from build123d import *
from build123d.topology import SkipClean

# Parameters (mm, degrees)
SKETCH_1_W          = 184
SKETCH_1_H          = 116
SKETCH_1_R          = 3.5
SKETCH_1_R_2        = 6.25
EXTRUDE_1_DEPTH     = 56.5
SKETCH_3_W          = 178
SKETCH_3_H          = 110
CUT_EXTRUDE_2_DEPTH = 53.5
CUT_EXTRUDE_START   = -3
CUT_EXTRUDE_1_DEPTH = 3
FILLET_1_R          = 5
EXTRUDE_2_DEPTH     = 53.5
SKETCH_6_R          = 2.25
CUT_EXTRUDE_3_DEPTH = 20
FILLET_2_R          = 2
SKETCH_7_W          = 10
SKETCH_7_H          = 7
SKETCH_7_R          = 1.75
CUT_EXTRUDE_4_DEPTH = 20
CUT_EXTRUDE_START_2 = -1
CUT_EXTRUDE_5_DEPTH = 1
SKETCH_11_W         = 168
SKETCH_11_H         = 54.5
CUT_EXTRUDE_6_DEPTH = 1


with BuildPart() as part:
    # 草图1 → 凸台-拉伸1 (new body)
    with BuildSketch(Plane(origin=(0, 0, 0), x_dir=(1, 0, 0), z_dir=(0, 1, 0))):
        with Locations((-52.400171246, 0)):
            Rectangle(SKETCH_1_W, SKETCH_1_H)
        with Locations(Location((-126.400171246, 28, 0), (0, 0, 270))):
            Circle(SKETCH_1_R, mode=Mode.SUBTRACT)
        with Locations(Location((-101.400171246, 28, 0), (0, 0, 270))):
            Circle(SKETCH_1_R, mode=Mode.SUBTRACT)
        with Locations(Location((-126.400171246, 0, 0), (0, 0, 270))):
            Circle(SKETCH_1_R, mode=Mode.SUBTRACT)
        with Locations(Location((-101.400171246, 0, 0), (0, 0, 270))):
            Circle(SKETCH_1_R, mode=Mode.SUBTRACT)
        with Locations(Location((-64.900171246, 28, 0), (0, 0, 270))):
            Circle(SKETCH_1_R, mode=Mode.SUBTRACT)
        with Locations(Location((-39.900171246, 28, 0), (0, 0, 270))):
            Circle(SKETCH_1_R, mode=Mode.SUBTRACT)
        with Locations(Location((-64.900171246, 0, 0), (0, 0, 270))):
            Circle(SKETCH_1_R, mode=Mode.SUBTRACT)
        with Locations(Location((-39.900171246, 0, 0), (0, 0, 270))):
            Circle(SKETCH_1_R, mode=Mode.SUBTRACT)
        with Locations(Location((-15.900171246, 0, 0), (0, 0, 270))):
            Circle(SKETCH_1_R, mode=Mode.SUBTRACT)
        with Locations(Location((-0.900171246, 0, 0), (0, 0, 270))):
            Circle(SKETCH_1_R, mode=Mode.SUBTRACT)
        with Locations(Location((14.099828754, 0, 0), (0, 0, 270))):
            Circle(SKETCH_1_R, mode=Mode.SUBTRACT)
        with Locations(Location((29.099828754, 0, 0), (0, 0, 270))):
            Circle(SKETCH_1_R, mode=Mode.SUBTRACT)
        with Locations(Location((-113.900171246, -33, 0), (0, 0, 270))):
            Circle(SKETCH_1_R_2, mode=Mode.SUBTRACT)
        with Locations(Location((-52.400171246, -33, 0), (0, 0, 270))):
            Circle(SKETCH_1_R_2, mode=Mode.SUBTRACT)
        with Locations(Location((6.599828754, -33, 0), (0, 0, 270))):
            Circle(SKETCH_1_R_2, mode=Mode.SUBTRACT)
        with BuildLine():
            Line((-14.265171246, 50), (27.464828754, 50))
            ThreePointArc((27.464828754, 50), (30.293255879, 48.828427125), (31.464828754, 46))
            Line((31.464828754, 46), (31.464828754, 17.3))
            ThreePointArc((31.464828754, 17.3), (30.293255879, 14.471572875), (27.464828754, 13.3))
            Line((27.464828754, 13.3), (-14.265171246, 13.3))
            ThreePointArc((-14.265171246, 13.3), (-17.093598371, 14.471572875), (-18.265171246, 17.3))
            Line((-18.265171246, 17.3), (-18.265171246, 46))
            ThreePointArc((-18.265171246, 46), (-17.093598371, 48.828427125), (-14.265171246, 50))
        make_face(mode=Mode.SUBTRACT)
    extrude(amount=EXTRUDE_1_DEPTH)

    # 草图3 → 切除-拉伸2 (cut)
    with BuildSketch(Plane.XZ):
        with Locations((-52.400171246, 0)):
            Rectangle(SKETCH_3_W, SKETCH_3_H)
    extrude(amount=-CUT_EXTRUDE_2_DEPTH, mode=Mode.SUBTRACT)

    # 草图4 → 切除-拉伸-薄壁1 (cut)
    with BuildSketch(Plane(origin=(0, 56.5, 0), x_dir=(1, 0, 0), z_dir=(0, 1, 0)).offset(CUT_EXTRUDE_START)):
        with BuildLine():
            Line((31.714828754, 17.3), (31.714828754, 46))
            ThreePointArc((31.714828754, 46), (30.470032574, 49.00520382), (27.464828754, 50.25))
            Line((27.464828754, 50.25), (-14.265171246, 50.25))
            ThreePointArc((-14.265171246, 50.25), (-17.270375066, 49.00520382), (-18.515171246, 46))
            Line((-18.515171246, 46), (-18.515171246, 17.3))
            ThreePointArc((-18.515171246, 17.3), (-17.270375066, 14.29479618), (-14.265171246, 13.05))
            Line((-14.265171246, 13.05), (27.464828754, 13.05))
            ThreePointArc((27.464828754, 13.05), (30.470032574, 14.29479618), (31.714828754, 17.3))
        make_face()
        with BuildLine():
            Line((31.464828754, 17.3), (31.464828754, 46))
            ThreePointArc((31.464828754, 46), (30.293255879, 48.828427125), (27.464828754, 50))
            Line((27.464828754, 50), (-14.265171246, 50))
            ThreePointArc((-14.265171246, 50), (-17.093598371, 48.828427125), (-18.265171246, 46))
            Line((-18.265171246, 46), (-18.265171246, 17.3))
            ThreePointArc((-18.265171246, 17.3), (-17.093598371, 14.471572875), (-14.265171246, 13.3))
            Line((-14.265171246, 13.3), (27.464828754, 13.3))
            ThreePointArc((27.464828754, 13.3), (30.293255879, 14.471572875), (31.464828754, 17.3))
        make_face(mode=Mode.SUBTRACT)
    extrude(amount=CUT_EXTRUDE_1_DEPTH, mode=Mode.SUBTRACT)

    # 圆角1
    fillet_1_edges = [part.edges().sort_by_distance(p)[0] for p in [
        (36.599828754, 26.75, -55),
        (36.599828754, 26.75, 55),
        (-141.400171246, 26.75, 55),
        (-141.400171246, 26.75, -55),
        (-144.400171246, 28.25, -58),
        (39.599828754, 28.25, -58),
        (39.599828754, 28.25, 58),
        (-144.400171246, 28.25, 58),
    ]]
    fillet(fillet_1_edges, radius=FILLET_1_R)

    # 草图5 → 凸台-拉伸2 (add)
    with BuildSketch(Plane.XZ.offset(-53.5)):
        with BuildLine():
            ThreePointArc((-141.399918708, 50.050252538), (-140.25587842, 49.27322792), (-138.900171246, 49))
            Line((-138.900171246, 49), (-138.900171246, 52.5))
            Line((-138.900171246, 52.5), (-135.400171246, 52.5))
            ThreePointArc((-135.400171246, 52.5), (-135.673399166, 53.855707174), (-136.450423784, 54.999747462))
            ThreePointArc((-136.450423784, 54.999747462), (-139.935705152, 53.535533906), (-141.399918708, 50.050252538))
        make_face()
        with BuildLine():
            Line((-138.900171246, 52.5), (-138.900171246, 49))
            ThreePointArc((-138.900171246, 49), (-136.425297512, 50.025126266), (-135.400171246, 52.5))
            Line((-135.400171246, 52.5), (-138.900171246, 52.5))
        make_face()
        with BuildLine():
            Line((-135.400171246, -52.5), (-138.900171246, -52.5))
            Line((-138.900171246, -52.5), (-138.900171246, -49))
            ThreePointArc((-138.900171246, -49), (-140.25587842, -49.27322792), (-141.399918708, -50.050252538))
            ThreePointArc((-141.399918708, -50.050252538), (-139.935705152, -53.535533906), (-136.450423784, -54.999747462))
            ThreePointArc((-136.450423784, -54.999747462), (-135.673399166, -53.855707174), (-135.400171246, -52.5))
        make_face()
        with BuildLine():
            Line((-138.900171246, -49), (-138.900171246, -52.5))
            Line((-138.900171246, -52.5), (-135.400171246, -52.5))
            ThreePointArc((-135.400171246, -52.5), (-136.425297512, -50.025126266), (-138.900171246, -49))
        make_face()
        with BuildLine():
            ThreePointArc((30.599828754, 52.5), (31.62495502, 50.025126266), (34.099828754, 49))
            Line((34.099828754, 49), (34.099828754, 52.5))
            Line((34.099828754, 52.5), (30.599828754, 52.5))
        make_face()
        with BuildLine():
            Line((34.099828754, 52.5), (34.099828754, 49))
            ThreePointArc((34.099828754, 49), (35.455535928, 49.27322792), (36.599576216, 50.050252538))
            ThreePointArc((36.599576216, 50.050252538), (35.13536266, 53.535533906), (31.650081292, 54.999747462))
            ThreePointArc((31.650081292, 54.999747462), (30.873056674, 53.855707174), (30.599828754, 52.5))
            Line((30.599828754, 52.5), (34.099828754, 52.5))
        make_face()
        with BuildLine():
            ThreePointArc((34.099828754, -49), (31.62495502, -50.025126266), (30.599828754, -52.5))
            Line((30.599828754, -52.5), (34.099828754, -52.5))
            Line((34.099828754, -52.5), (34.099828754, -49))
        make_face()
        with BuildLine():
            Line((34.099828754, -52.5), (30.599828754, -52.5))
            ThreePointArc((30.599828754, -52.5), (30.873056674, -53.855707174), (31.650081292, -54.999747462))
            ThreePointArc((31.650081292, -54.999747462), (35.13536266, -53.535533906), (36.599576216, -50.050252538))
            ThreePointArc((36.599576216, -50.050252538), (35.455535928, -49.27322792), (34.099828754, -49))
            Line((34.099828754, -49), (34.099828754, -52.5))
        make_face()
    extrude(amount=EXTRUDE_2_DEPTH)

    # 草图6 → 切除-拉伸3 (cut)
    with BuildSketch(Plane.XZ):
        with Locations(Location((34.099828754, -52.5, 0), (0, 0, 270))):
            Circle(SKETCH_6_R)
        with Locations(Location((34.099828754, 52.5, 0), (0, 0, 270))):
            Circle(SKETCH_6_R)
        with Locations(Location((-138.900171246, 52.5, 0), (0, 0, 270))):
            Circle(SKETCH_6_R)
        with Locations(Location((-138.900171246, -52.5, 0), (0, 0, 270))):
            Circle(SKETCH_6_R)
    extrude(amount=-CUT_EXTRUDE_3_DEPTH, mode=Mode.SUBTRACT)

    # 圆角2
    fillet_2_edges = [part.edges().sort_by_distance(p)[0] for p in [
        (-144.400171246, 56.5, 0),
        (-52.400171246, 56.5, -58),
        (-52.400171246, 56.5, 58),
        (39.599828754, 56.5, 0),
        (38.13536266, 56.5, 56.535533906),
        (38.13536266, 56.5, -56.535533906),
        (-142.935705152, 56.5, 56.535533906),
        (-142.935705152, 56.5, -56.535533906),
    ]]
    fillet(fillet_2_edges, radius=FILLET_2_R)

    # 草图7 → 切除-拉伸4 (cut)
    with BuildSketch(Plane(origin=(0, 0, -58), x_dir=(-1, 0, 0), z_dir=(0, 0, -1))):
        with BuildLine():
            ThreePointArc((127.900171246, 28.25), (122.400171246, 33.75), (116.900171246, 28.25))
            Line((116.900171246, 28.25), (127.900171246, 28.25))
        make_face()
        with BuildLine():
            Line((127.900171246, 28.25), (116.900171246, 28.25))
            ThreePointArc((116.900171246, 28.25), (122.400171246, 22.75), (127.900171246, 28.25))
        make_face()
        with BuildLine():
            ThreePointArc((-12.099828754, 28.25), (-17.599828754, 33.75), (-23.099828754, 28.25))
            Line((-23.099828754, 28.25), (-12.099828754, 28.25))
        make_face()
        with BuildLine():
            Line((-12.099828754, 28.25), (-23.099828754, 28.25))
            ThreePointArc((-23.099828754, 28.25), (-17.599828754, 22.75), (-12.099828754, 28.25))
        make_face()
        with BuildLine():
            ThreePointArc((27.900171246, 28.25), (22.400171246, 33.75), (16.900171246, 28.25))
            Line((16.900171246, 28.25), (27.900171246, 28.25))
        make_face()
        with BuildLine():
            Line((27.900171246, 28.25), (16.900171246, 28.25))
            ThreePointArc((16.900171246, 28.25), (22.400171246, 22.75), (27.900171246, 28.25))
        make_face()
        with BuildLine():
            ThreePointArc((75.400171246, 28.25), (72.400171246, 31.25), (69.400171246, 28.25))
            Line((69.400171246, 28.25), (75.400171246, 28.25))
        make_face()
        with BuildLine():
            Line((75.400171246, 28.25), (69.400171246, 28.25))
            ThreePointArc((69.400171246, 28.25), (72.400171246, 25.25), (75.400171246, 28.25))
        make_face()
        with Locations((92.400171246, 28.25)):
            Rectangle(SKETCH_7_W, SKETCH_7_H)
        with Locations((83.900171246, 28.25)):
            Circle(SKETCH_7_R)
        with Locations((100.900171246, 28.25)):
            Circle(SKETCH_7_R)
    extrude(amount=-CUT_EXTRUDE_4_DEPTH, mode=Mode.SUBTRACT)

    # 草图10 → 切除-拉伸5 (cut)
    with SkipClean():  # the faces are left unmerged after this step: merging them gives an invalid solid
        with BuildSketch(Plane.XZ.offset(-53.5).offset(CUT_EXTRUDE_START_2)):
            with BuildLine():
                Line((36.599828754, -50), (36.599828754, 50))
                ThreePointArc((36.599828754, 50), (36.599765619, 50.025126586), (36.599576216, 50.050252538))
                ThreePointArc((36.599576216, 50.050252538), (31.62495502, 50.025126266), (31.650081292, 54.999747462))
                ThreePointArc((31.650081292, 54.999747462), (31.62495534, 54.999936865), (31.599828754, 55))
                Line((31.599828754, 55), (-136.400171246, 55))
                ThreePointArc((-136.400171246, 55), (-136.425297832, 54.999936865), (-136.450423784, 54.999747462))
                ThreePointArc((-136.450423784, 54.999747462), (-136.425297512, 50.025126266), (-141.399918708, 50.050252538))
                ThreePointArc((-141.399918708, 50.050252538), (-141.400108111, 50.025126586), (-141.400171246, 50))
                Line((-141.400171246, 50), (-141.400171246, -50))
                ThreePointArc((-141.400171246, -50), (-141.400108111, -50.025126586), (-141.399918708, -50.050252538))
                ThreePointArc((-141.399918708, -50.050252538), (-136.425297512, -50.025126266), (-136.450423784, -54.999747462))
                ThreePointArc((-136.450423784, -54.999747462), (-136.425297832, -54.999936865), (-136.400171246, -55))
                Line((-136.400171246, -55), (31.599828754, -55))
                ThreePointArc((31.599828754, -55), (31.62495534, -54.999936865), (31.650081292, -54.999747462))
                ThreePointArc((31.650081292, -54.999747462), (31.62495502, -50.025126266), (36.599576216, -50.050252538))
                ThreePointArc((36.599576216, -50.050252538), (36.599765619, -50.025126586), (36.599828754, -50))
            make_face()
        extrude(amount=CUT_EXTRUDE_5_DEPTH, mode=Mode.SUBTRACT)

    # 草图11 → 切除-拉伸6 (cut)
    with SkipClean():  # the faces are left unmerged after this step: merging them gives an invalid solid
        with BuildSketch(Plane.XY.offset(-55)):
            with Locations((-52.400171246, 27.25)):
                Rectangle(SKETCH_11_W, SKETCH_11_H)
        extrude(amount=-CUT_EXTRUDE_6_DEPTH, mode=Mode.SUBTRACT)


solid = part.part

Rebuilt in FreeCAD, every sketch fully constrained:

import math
import FreeCAD as App
import Part
import Sketcher
from FreeCAD import Vector


def edges_at(feature, points):
    """Names of the edges that pass closest to the given points."""
    edges = feature.Shape.Edges
    near = lambda p: min(range(len(edges)), key=lambda i: edges[i].distToShape(Part.Vertex(*p))[0])
    return sorted({f"Edge{near(p) + 1}" for p in points})


def add_polygon(sketch, points):
    """Adds a closed chain of lines whose ends are joined by coincident constraints."""
    first, n = sketch.GeometryCount, len(points)
    for a, b in zip(points, points[1:] + points[:1]):
        sketch.addGeometry(Part.LineSegment(App.Vector(*a, 0), App.Vector(*b, 0)), False)
    for i in range(n):
        sketch.addConstraint(Sketcher.Constraint("Coincident", first + i, 2, first + (i + 1) % n, 1))

doc = App.newDocument("Part")
params = doc.addObject("Spreadsheet::Sheet", "Params")
for row, (alias, value) in enumerate([
    ("sketch1_diameter", "7 mm"),
    ("sketch1_radius", "4 mm"),
    ("sketch1_diameter2", "12.5 mm"),
    ("sketch1_width", "184 mm"),
    ("sketch1_height", "116 mm"),
    ("pad1_length", "56.5 mm"),
    ("sketch2_width", "178 mm"),
    ("sketch2_height", "110 mm"),
    ("pocket1_length", "53.5 mm"),
    ("sketch3_radius", "4 mm"),
    ("sketch3_radius2", "4.25 mm"),
    ("sketch3_height", "28.7 mm"),
    ("sketch3_width", "41.73 mm"),
    ("pocket2_length", "3 mm"),
    ("fillet_radius", "5 mm"),
    ("sketch4_radius", "5 mm"),
    ("sketch4_radius2", "3.5 mm"),
    ("pad2_length", "53.5 mm"),
    ("sketch5_diameter", "4.5 mm"),
    ("pocket3_length", "20 mm"),
    ("fillet2_radius", "2 mm"),
    ("sketch6_diameter", "11 mm"),
    ("sketch6_diameter2", "6 mm"),
    ("sketch6_diameter3", "3.5 mm"),
    ("sketch6_width", "10 mm"),
    ("sketch6_height", "7 mm"),
    ("pocket4_length", "20 mm"),
    ("sketch7_radius", "3.5 mm"),
    ("sketch7_width", "168 mm"),
    ("sketch7_height", "100 mm"),
    ("pocket5_length", "1 mm"),
    ("sketch8_width", "168 mm"),
    ("sketch8_height", "54.5 mm"),
    ("pocket6_length", "1 mm"),
], start=1):
    params.set(f"A{row}", alias)
    params.set(f"B{row}", "=" + value)
    params.setAlias(f"B{row}", alias)

body = doc.addObject("PartDesign::Body", "Body")

sketch1 = body.newObject("Sketcher::SketchObject", "Sketch")
sketch1.AttachmentSupport = (doc.getObject("XZ_Plane"), [""])
sketch1.MapMode = "FlatFace"
add_polygon(sketch1, [(-144.4, -58), (-144.4, 58), (39.6, 58), (39.6, -58)])
sketch1.addGeometry(Part.Circle(Vector(-113.9, 33, 0), Vector(0, 0, 1), 6.2), False)
sketch1.addGeometry(Part.Circle(Vector(-52.4, 33, 0), Vector(0, 0, 1), 6.2), False)
sketch1.addGeometry(Part.Circle(Vector(-126.4, 0, 0), Vector(0, 0, 1), 3.5), False)
sketch1.addGeometry(Part.Circle(Vector(-101.4, 0, 0), Vector(0, 0, 1), 3.5), False)
sketch1.addGeometry(Part.Circle(Vector(-64.9, 0, 0), Vector(0, 0, 1), 3.5), False)
sketch1.addGeometry(Part.Circle(Vector(6.6, 33, 0), Vector(0, 0, 1), 6.2), False)
sketch1.addGeometry(Part.Circle(Vector(-39.9, 0, 0), Vector(0, 0, 1), 3.5), False)
sketch1.addGeometry(Part.Circle(Vector(-15.9, 0, 0), Vector(0, 0, 1), 3.5), False)
sketch1.addGeometry(Part.Circle(Vector(-0.9, 0, 0), Vector(0, 0, 1), 3.5), False)
sketch1.addGeometry(Part.Circle(Vector(14.1, 0, 0), Vector(0, 0, 1), 3.5), False)
sketch1.addGeometry(Part.Circle(Vector(29.1, 0, 0), Vector(0, 0, 1), 3.5), False)
sketch1.addGeometry(Part.Circle(Vector(-126.4, -28, 0), Vector(0, 0, 1), 3.5), False)
sketch1.addGeometry(Part.Circle(Vector(-101.4, -28, 0), Vector(0, 0, 1), 3.5), False)
sketch1.addGeometry(Part.Circle(Vector(-64.9, -28, 0), Vector(0, 0, 1), 3.5), False)
sketch1.addGeometry(Part.Circle(Vector(-39.9, -28, 0), Vector(0, 0, 1), 3.5), False)
sketch1.addGeometry(Part.ArcOfCircle(Part.Circle(Vector(-14.3, -46, 0), Vector(0, 0, 1), 4), math.radians(180), math.radians(270)), False)
sketch1.addGeometry(Part.LineSegment(Vector(-14.3, -50, 0), Vector(27.5, -50, 0)), False)
sketch1.addGeometry(Part.ArcOfCircle(Part.Circle(Vector(27.5, -46, 0), Vector(0, 0, 1), 4), math.radians(-90), math.radians(0)), False)
sketch1.addGeometry(Part.LineSegment(Vector(31.5, -46, 0), Vector(31.5, -17.3, 0)), False)
sketch1.addGeometry(Part.ArcOfCircle(Part.Circle(Vector(27.5, -17.3, 0), Vector(0, 0, 1), 4), math.radians(0), math.radians(90)), False)
sketch1.addGeometry(Part.LineSegment(Vector(27.5, -13.3, 0), Vector(-14.3, -13.3, 0)), False)
sketch1.addGeometry(Part.ArcOfCircle(Part.Circle(Vector(-14.3, -17.3, 0), Vector(0, 0, 1), 4), math.radians(90), math.radians(180)), False)
sketch1.addGeometry(Part.LineSegment(Vector(-18.3, -17.3, 0), Vector(-18.3, -46, 0)), False)
sketch1.addConstraint([
    Sketcher.Constraint("Tangent", 19, 2, 20, 1),
    Sketcher.Constraint("Tangent", 20, 2, 21, 1),
    Sketcher.Constraint("Tangent", 21, 2, 22, 1),
    Sketcher.Constraint("Tangent", 22, 2, 23, 1),
    Sketcher.Constraint("Tangent", 23, 2, 24, 1),
    Sketcher.Constraint("Tangent", 24, 2, 25, 1),
    Sketcher.Constraint("Tangent", 25, 2, 26, 1),
    Sketcher.Constraint("Tangent", 26, 2, 19, 1),
    Sketcher.Constraint("Vertical", 0),
    Sketcher.Constraint("Horizontal", 1),
    Sketcher.Constraint("Vertical", 2),
    Sketcher.Constraint("Horizontal", 3),
    Sketcher.Constraint("Horizontal", 20),
    Sketcher.Constraint("Vertical", 22),
    Sketcher.Constraint("Horizontal", 24),
    Sketcher.Constraint("Vertical", 26),
    Sketcher.Constraint("Equal", 4, 5),
    Sketcher.Constraint("Equal", 6, 7),
    Sketcher.Constraint("Equal", 7, 8),
    Sketcher.Constraint("Equal", 5, 9),
    Sketcher.Constraint("Equal", 8, 10),
    Sketcher.Constraint("Equal", 10, 11),
    Sketcher.Constraint("Equal", 11, 12),
    Sketcher.Constraint("Equal", 12, 13),
    Sketcher.Constraint("Equal", 13, 14),
    Sketcher.Constraint("Equal", 14, 15),
    Sketcher.Constraint("Equal", 15, 16),
    Sketcher.Constraint("Equal", 16, 17),
    Sketcher.Constraint("Equal", 17, 18),
    Sketcher.Constraint("Equal", 19, 21),
    Sketcher.Constraint("Equal", 21, 23),
    Sketcher.Constraint("Equal", 23, 25),
    Sketcher.Constraint("PointOnObject", 6, 3, -1),
    Sketcher.Constraint("PointOnObject", 7, 3, -1),
    Sketcher.Constraint("PointOnObject", 8, 3, -1),
    Sketcher.Constraint("PointOnObject", 10, 3, -1),
    Sketcher.Constraint("PointOnObject", 11, 3, -1),
    Sketcher.Constraint("PointOnObject", 12, 3, -1),
    Sketcher.Constraint("PointOnObject", 13, 3, -1),
    Sketcher.Constraint("PointOnObject", 14, 3, -1),
    Sketcher.Constraint("Horizontal", 4, 3, 5, 3),
    Sketcher.Constraint("Horizontal", 5, 3, 9, 3),
    Sketcher.Constraint("Horizontal", 15, 3, 16, 3),
    Sketcher.Constraint("Horizontal", 16, 3, 17, 3),
    Sketcher.Constraint("Horizontal", 17, 3, 18, 3),
    Sketcher.Constraint("Vertical", 6, 3, 15, 3),
    Sketcher.Constraint("Vertical", 7, 3, 16, 3),
    Sketcher.Constraint("Vertical", 8, 3, 17, 3),
    Sketcher.Constraint("Vertical", 10, 3, 18, 3),
    Sketcher.Constraint("Diameter", 6, 7.0),
    Sketcher.Constraint("Radius", 19, 4.0),
    Sketcher.Constraint("Diameter", 4, 12.5),
    Sketcher.Constraint("DistanceX", 1, 1, 1, 2, 184.0),
    Sketcher.Constraint("DistanceY", 0, 1, 0, 2, 116.0),
    Sketcher.Constraint("DistanceY", 22, 1, 22, 2, 28.7),
    Sketcher.Constraint("DistanceY", -1, 1, 4, 3, 33.0),
    Sketcher.Constraint("DistanceY", 15, 3, -1, 1, 28.0),
    Sketcher.Constraint("DistanceY", 19, 3, -1, 1, 46.0),
    Sketcher.Constraint("DistanceY", -1, 1, 0, 2, 58.0),
    Sketcher.Constraint("DistanceX", 6, 3, 5, 3, 74.0),
    Sketcher.Constraint("DistanceX", 6, 3, 7, 3, 25.0),
    Sketcher.Constraint("DistanceX", 4, 3, 8, 3, 49.0),
    Sketcher.Constraint("DistanceX", 5, 3, 9, 3, 59.0),
    Sketcher.Constraint("DistanceX", 8, 3, 10, 3, 25.0),
    Sketcher.Constraint("DistanceX", 10, 3, 11, 3, 24.0),
    Sketcher.Constraint("DistanceX", 11, 3, 12, 3, 15.0),
    Sketcher.Constraint("DistanceX", 12, 3, 13, 3, 15.0),
    Sketcher.Constraint("DistanceX", 13, 3, 14, 3, 15.0),
    Sketcher.Constraint("DistanceX", 0, 2, 6, 3, 18.0),
    Sketcher.Constraint("DistanceX", 20, 1, 20, 2, 41.73),
    Sketcher.Constraint("DistanceX", 4, 3, 5, 3, 61.5),
    Sketcher.Constraint("DistanceX", 18, 3, 19, 3, 25.635),
    Sketcher.Constraint("DistanceX", 4, 3, -1, 1, 113.900171),
])
sketch1.setExpression("Constraints[53]", "Params.sketch1_diameter")
sketch1.setExpression("Constraints[54]", "Params.sketch1_radius")
sketch1.setExpression("Constraints[55]", "Params.sketch1_diameter2")
sketch1.setExpression("Constraints[56]", "Params.sketch1_width")
sketch1.setExpression("Constraints[57]", "Params.sketch1_height")
pad1 = body.newObject("PartDesign::Pad", "Pad")
pad1.Profile = sketch1
pad1.setExpression("Length", "Params.pad1_length")
pad1.Reversed = True

sketch2 = body.newObject("Sketcher::SketchObject", "Sketch001")
sketch2.AttachmentSupport = (doc.getObject("XZ_Plane"), [""])
sketch2.MapMode = "FlatFace"
add_polygon(sketch2, [(-141, 55), (-141, -55), (37, -55), (37, 55)])
sketch2.addConstraint([
    Sketcher.Constraint("Vertical", 0),
    Sketcher.Constraint("Horizontal", 1),
    Sketcher.Constraint("Vertical", 2),
    Sketcher.Constraint("Horizontal", 3),
    Sketcher.Constraint("DistanceX", 1, 1, 1, 2, 178.0),
    Sketcher.Constraint("DistanceY", 0, 2, 0, 1, 110.0),
    Sketcher.Constraint("DistanceY", 0, 2, -1, 1, 55.0),
    Sketcher.Constraint("DistanceX", 0, 2, -1, 1, 141.400171),
])
sketch2.setExpression("Constraints[8]", "Params.sketch2_width")
sketch2.setExpression("Constraints[9]", "Params.sketch2_height")
pocket1 = body.newObject("PartDesign::Pocket", "Pocket")
pocket1.Profile = sketch2
pocket1.setExpression("Length", "Params.pocket1_length")

sketch3 = body.newObject("Sketcher::SketchObject", "Sketch002")
sketch3.AttachmentSupport = (doc.getObject("XZ_Plane"), [""])
sketch3.MapMode = "FlatFace"
sketch3.AttachmentOffset = App.Placement(Vector(0, 0, -53.5), App.Rotation())
sketch3.addGeometry([
    Part.LineSegment(Vector(31.7, -17.3, 0), Vector(31.7, -46, 0)),
    Part.ArcOfCircle(Part.Circle(Vector(27.5, -46, 0), Vector(0, 0, 1), 4.2), math.radians(-90), math.radians(0)),
    Part.LineSegment(Vector(27.5, -50.2, 0), Vector(-14.3, -50.2, 0)),
    Part.ArcOfCircle(Part.Circle(Vector(-14.3, -46, 0), Vector(0, 0, 1), 4.2), math.radians(180), math.radians(270)),
    Part.LineSegment(Vector(-18.5, -46, 0), Vector(-18.5, -17.3, 0)),
    Part.ArcOfCircle(Part.Circle(Vector(-14.3, -17.3, 0), Vector(0, 0, 1), 4.2), math.radians(90), math.radians(180)),
    Part.LineSegment(Vector(-14.3, -13.1, 0), Vector(27.5, -13.1, 0)),
    Part.ArcOfCircle(Part.Circle(Vector(27.5, -17.3, 0), Vector(0, 0, 1), 4.2), math.radians(0), math.radians(90)),
    Part.LineSegment(Vector(31.5, -46, 0), Vector(31.5, -17.3, 0)),
    Part.ArcOfCircle(Part.Circle(Vector(27.5, -17.3, 0), Vector(0, 0, 1), 4), math.radians(0), math.radians(90)),
    Part.LineSegment(Vector(27.5, -13.3, 0), Vector(-14.3, -13.3, 0)),
    Part.ArcOfCircle(Part.Circle(Vector(-14.3, -17.3, 0), Vector(0, 0, 1), 4), math.radians(90), math.radians(180)),
    Part.LineSegment(Vector(-18.3, -17.3, 0), Vector(-18.3, -46, 0)),
    Part.ArcOfCircle(Part.Circle(Vector(-14.3, -46, 0), Vector(0, 0, 1), 4), math.radians(180), math.radians(270)),
    Part.LineSegment(Vector(-14.3, -50, 0), Vector(27.5, -50, 0)),
    Part.ArcOfCircle(Part.Circle(Vector(27.5, -46, 0), Vector(0, 0, 1), 4), math.radians(-90), math.radians(0)),
], False)
sketch3.addConstraint([
    Sketcher.Constraint("Tangent", 0, 2, 1, 2),
    Sketcher.Constraint("Tangent", 1, 1, 2, 1),
    Sketcher.Constraint("Tangent", 2, 2, 3, 2),
    Sketcher.Constraint("Tangent", 3, 1, 4, 1),
    Sketcher.Constraint("Tangent", 4, 2, 5, 2),
    Sketcher.Constraint("Tangent", 5, 1, 6, 1),
    Sketcher.Constraint("Tangent", 6, 2, 7, 2),
    Sketcher.Constraint("Tangent", 7, 1, 0, 1),
    Sketcher.Constraint("Tangent", 8, 2, 9, 1),
    Sketcher.Constraint("Tangent", 9, 2, 10, 1),
    Sketcher.Constraint("Tangent", 10, 2, 11, 1),
    Sketcher.Constraint("Tangent", 11, 2, 12, 1),
    Sketcher.Constraint("Tangent", 12, 2, 13, 1),
    Sketcher.Constraint("Tangent", 13, 2, 14, 1),
    Sketcher.Constraint("Tangent", 14, 2, 15, 1),
    Sketcher.Constraint("Tangent", 15, 2, 8, 1),
    Sketcher.Constraint("Vertical", 0),
    Sketcher.Constraint("Horizontal", 2),
    Sketcher.Constraint("Vertical", 4),
    Sketcher.Constraint("Horizontal", 6),
    Sketcher.Constraint("Vertical", 8),
    Sketcher.Constraint("Horizontal", 10),
    Sketcher.Constraint("Vertical", 12),
    Sketcher.Constraint("Horizontal", 14),
    Sketcher.Constraint("Coincident", 9, 3, 7, 3),
    Sketcher.Constraint("Coincident", 11, 3, 5, 3),
    Sketcher.Constraint("Coincident", 13, 3, 3, 3),
    Sketcher.Constraint("Equal", 1, 3),
    Sketcher.Constraint("Equal", 3, 5),
    Sketcher.Constraint("Equal", 5, 7),
    Sketcher.Constraint("Equal", 13, 15),
    Sketcher.Constraint("Radius", 9, 4.0),
    Sketcher.Constraint("Radius", 1, 4.25),
    Sketcher.Constraint("DistanceY", 0, 2, 0, 1, 28.7),
    Sketcher.Constraint("DistanceY", 1, 3, -1, 1, 46.0),
    Sketcher.Constraint("DistanceX", 2, 2, 2, 1, 41.73),
    Sketcher.Constraint("DistanceX", -1, 1, 1, 3, 27.464829),
])
sketch3.setExpression("Constraints[31]", "Params.sketch3_radius")
sketch3.setExpression("Constraints[32]", "Params.sketch3_radius2")
sketch3.setExpression("Constraints[33]", "Params.sketch3_height")
sketch3.setExpression("Constraints[35]", "Params.sketch3_width")
pocket2 = body.newObject("PartDesign::Pocket", "Pocket001")
pocket2.Profile = sketch3
pocket2.setExpression("Length", "Params.pocket2_length")
doc.recompute()

fillet = body.newObject("PartDesign::Fillet", "Fillet")
fillet.Base = (pocket2, edges_at(pocket2, [
    (36.6, 26.75, -55),
    (36.6, 26.75, 55),
    (-141.4, 26.75, 55),
    (-141.4, 26.75, -55),
    (-144.4, 28.25, -58),
    (39.6, 28.25, -58),
    (39.6, 28.25, 58),
    (-144.4, 28.25, 58),
]))
fillet.setExpression("Radius", "Params.fillet_radius")

sketch4 = body.newObject("Sketcher::SketchObject", "Sketch003")
sketch4.AttachmentSupport = (doc.getObject("XZ_Plane"), [""])
sketch4.MapMode = "FlatFace"
sketch4.AttachmentOffset = App.Placement(Vector(0, 0, -53.5), App.Rotation())
sketch4.addGeometry([
    Part.ArcOfCircle(Part.Circle(Vector(-138.9, 52.5, 0), Vector(0, 0, 1), 3.5), math.radians(-136), math.radians(-90)),
    Part.ArcOfCircle(Part.Circle(Vector(-138.9, 52.5, 0), Vector(0, 0, 1), 3.5), math.radians(-90), math.radians(0)),
    Part.ArcOfCircle(Part.Circle(Vector(-138.9, 52.5, 0), Vector(0, 0, 1), 3.5), math.radians(0), math.radians(46)),
    Part.ArcOfCircle(Part.Circle(Vector(-136.4, 50, 0), Vector(0, 0, 1), 5), math.radians(91), math.radians(179)),
    Part.ArcOfCircle(Part.Circle(Vector(-138.9, -52.5, 0), Vector(0, 0, 1), 3.5), math.radians(90), math.radians(136)),
    Part.ArcOfCircle(Part.Circle(Vector(-136.4, -50, 0), Vector(0, 0, 1), 5), math.radians(-179), math.radians(-91)),
    Part.ArcOfCircle(Part.Circle(Vector(-138.9, -52.5, 0), Vector(0, 0, 1), 3.5), math.radians(-46), math.radians(0)),
    Part.ArcOfCircle(Part.Circle(Vector(-138.9, -52.5, 0), Vector(0, 0, 1), 3.5), math.radians(0), math.radians(90)),
    Part.ArcOfCircle(Part.Circle(Vector(34.1, 52.5, 0), Vector(0, 0, 1), 3.5), math.radians(-180), math.radians(-90)),
    Part.ArcOfCircle(Part.Circle(Vector(34.1, 52.5, 0), Vector(0, 0, 1), 3.5), math.radians(-90), math.radians(-44)),
    Part.ArcOfCircle(Part.Circle(Vector(31.6, 50, 0), Vector(0, 0, 1), 5), math.radians(1), math.radians(89)),
    Part.ArcOfCircle(Part.Circle(Vector(34.1, 52.5, 0), Vector(0, 0, 1), 3.5), math.radians(134), math.radians(180)),
    Part.ArcOfCircle(Part.Circle(Vector(34.1, -52.5, 0), Vector(0, 0, 1), 3.5), math.radians(90), math.radians(180)),
    Part.ArcOfCircle(Part.Circle(Vector(34.1, -52.5, 0), Vector(0, 0, 1), 3.5), math.radians(-180), math.radians(-134)),
    Part.ArcOfCircle(Part.Circle(Vector(31.6, -50, 0), Vector(0, 0, 1), 5), math.radians(-89), math.radians(-1)),
    Part.ArcOfCircle(Part.Circle(Vector(34.1, -52.5, 0), Vector(0, 0, 1), 3.5), math.radians(44), math.radians(90)),
], False)
sketch4.addConstraint([
    Sketcher.Constraint("Tangent", 0, 2, 1, 1),
    Sketcher.Constraint("Tangent", 1, 2, 2, 1),
    Sketcher.Constraint("Coincident", 2, 2, 3, 1),
    Sketcher.Constraint("Coincident", 3, 2, 0, 1),
    Sketcher.Constraint("Coincident", 4, 2, 5, 1),
    Sketcher.Constraint("Coincident", 5, 2, 6, 1),
    Sketcher.Constraint("Tangent", 6, 2, 7, 1),
    Sketcher.Constraint("Tangent", 7, 2, 4, 1),
    Sketcher.Constraint("Tangent", 8, 2, 9, 1),
    Sketcher.Constraint("Coincident", 9, 2, 10, 1),
    Sketcher.Constraint("Coincident", 10, 2, 11, 1),
    Sketcher.Constraint("Tangent", 11, 2, 8, 1),
    Sketcher.Constraint("Tangent", 12, 2, 13, 1),
    Sketcher.Constraint("Coincident", 13, 2, 14, 1),
    Sketcher.Constraint("Coincident", 14, 2, 15, 1),
    Sketcher.Constraint("Tangent", 15, 2, 12, 1),
    Sketcher.Constraint("Coincident", 2, 3, 0, 3),
    Sketcher.Constraint("Coincident", 6, 3, 4, 3),
    Sketcher.Constraint("Equal", 2, 4),
    Sketcher.Constraint("Equal", 3, 5),
    Sketcher.Constraint("Equal", 7, 8),
    Sketcher.Constraint("Equal", 8, 9),
    Sketcher.Constraint("Equal", 5, 10),
    Sketcher.Constraint("Equal", 9, 11),
    Sketcher.Constraint("Equal", 11, 12),
    Sketcher.Constraint("Equal", 12, 13),
    Sketcher.Constraint("Equal", 10, 14),
    Sketcher.Constraint("Equal", 13, 15),
    Sketcher.Constraint("Symmetric", 0, 3, 4, 3, -1),
    Sketcher.Constraint("Symmetric", 3, 3, 5, 3, -1),
    Sketcher.Constraint("Symmetric", 8, 3, 12, 3, -1),
    Sketcher.Constraint("Symmetric", 10, 3, 14, 3, -1),
    Sketcher.Constraint("Horizontal", 2, 3, 8, 3),
    Sketcher.Constraint("Horizontal", 3, 3, 10, 3),
    Sketcher.Constraint("Horizontal", 11, 3, 1, 2),
    Sketcher.Constraint("Horizontal", 15, 3, 6, 2),
    Sketcher.Constraint("Horizontal", 3, 2, 9, 2),
    Sketcher.Constraint("Horizontal", 1, 2, 11, 2),
    Sketcher.Constraint("Horizontal", 6, 2, 12, 2),
    Sketcher.Constraint("Vertical", 7, 3, 0, 2),
    Sketcher.Constraint("Vertical", 0, 2, 7, 2),
    Sketcher.Constraint("Vertical", 15, 3, 8, 2),
    Sketcher.Constraint("Vertical", 8, 2, 15, 2),
    Sketcher.Constraint("Radius", 3, 5.0),
    Sketcher.Constraint("Radius", 0, 3.5),
    Sketcher.Constraint("DistanceY", -1, 1, 3, 3, 50.0),
    Sketcher.Constraint("DistanceY", -1, 1, 0, 2, 49.0),
    Sketcher.Constraint("DistanceX", 0, 3, 8, 3, 173.0),
    Sketcher.Constraint("DistanceX", 3, 3, 10, 3, 168.0),
    Sketcher.Constraint("DistanceX", 0, 3, -1, 1, 138.900171),
])
sketch4.setExpression("Constraints[43]", "Params.sketch4_radius")
sketch4.setExpression("Constraints[44]", "Params.sketch4_radius2")
pad2 = body.newObject("PartDesign::Pad", "Pad001")
pad2.Profile = sketch4
pad2.setExpression("Length", "Params.pad2_length")

sketch5 = body.newObject("Sketcher::SketchObject", "Sketch004")
sketch5.AttachmentSupport = (doc.getObject("XZ_Plane"), [""])
sketch5.MapMode = "FlatFace"
sketch5.addGeometry([
    Part.Circle(Vector(34.1, -52.5, 0), Vector(0, 0, 1), 2.2),
    Part.Circle(Vector(34.1, 52.5, 0), Vector(0, 0, 1), 2.2),
    Part.Circle(Vector(-138.9, 52.5, 0), Vector(0, 0, 1), 2.2),
    Part.Circle(Vector(-138.9, -52.5, 0), Vector(0, 0, 1), 2.2),
], False)
sketch5.addConstraint([
    Sketcher.Constraint("Equal", 0, 1),
    Sketcher.Constraint("Equal", 1, 2),
    Sketcher.Constraint("Equal", 2, 3),
    Sketcher.Constraint("Symmetric", 0, 3, 1, 3, -1),
    Sketcher.Constraint("Symmetric", 2, 3, 3, 3, -1),
    Sketcher.Constraint("Horizontal", 1, 3, 2, 3),
    Sketcher.Constraint("Diameter", 0, 4.5),
    Sketcher.Constraint("DistanceY", 0, 3, 1, 3, 105.0),
    Sketcher.Constraint("DistanceX", 2, 3, 1, 3, 173.0),
    Sketcher.Constraint("DistanceX", -1, 1, 0, 3, 34.099829),
])
sketch5.setExpression("Constraints[6]", "Params.sketch5_diameter")
pocket3 = body.newObject("PartDesign::Pocket", "Pocket002")
pocket3.Profile = sketch5
pocket3.setExpression("Length", "Params.pocket3_length")
doc.recompute()

fillet2 = body.newObject("PartDesign::Fillet", "Fillet001")
fillet2.Base = (pocket3, edges_at(pocket3, [
    (-144.4, 56.5, 0),
    (-52.4, 56.5, -58),
    (-52.4, 56.5, 58),
    (39.6, 56.5, 0),
    (38.135, 56.5, 56.536),
    (38.135, 56.5, -56.536),
    (-142.936, 56.5, 56.536),
    (-142.936, 56.5, -56.536),
]))
fillet2.setExpression("Radius", "Params.fillet2_radius")

sketch6 = body.newObject("Sketcher::SketchObject", "Sketch005")
sketch6.AttachmentSupport = (doc.getObject("XY_Plane"), [""])
sketch6.MapMode = "FlatFace"
sketch6.AttachmentOffset = App.Placement(Vector(0, 0, -58), App.Rotation())
sketch6.addGeometry(Part.Circle(Vector(-122.4, 28.2, 0), Vector(0, 0, 1), 5.5), False)
sketch6.addGeometry(Part.Circle(Vector(17.6, 28.2, 0), Vector(0, 0, 1), 5.5), False)
sketch6.addGeometry(Part.Circle(Vector(-22.4, 28.2, 0), Vector(0, 0, 1), 5.5), False)
sketch6.addGeometry(Part.Circle(Vector(-72.4, 28.2, 0), Vector(0, 0, 1), 3), False)
add_polygon(sketch6, [(-87.4, 31.8), (-87.4, 24.8), (-97.4, 24.8), (-97.4, 31.8)])
sketch6.addGeometry(Part.Circle(Vector(-83.9, 28.2, 0), Vector(0, 0, 1), 1.8), False)
sketch6.addGeometry(Part.Circle(Vector(-100.9, 28.2, 0), Vector(0, 0, 1), 1.8), False)
sketch6.addConstraint([
    Sketcher.Constraint("Vertical", 4),
    Sketcher.Constraint("Horizontal", 5),
    Sketcher.Constraint("Vertical", 6),
    Sketcher.Constraint("Horizontal", 7),
    Sketcher.Constraint("Equal", 0, 1),
    Sketcher.Constraint("Equal", 1, 2),
    Sketcher.Constraint("Equal", 8, 9),
    Sketcher.Constraint("Horizontal", 0, 3, 1, 3),
    Sketcher.Constraint("Horizontal", 1, 3, 2, 3),
    Sketcher.Constraint("Horizontal", 2, 3, 3, 3),
    Sketcher.Constraint("Horizontal", 3, 3, 8, 3),
    Sketcher.Constraint("Horizontal", 8, 3, 9, 3),
    Sketcher.Constraint("Diameter", 0, 11.0),
    Sketcher.Constraint("Diameter", 3, 6.0),
    Sketcher.Constraint("Diameter", 8, 3.5),
    Sketcher.Constraint("DistanceX", 5, 2, 5, 1, 10.0),
    Sketcher.Constraint("DistanceY", 4, 2, 4, 1, 7.0),
    Sketcher.Constraint("DistanceX", 0, 3, 1, 3, 140.0),
    Sketcher.Constraint("DistanceX", 2, 3, 1, 3, 40.0),
    Sketcher.Constraint("DistanceX", 0, 3, 3, 3, 50.0),
    Sketcher.Constraint("DistanceX", 9, 3, 8, 3, 17.0),
    Sketcher.Constraint("DistanceX", 4, 2, 3, 3, 15.0),
    Sketcher.Constraint("DistanceX", 8, 3, 3, 3, 11.5),
    Sketcher.Constraint("DistanceY", 4, 2, 8, 3, 3.5),
    Sketcher.Constraint("DistanceY", -1, 1, 0, 3, 28.25),
    Sketcher.Constraint("DistanceX", 0, 3, -1, 1, 122.400171),
])
sketch6.setExpression("Constraints[16]", "Params.sketch6_diameter")
sketch6.setExpression("Constraints[17]", "Params.sketch6_diameter2")
sketch6.setExpression("Constraints[18]", "Params.sketch6_diameter3")
sketch6.setExpression("Constraints[19]", "Params.sketch6_width")
sketch6.setExpression("Constraints[20]", "Params.sketch6_height")
pocket4 = body.newObject("PartDesign::Pocket", "Pocket003")
pocket4.Profile = sketch6
pocket4.setExpression("Length", "Params.pocket4_length")
pocket4.Reversed = True

sketch7 = body.newObject("Sketcher::SketchObject", "Sketch006")
sketch7.AttachmentSupport = (doc.getObject("XZ_Plane"), [""])
sketch7.MapMode = "FlatFace"
sketch7.AttachmentOffset = App.Placement(Vector(0, 0, -54.5), App.Rotation())
sketch7.addGeometry([
    Part.LineSegment(Vector(36.6, -50, 0), Vector(36.6, 50, 0)),
    Part.ArcOfCircle(Part.Circle(Vector(31.6, 50, 0), Vector(0, 0, 1), 5), math.radians(0), math.radians(0.58)),
    Part.ArcOfCircle(Part.Circle(Vector(34.1, 52.5, 0), Vector(0, 0, 1), 3.5), math.radians(134), math.radians(316)),
    Part.ArcOfCircle(Part.Circle(Vector(31.6, 50, 0), Vector(0, 0, 1), 5), math.radians(89.42), math.radians(90)),
    Part.LineSegment(Vector(31.6, 55, 0), Vector(-136.4, 55, 0)),
    Part.ArcOfCircle(Part.Circle(Vector(-136.4, 50, 0), Vector(0, 0, 1), 5), math.radians(90), math.radians(90.58)),
    Part.ArcOfCircle(Part.Circle(Vector(-138.9, 52.5, 0), Vector(0, 0, 1), 3.5), math.radians(-136), math.radians(46)),
    Part.ArcOfCircle(Part.Circle(Vector(-136.4, 50, 0), Vector(0, 0, 1), 5), math.radians(179.42), math.radians(180)),
    Part.LineSegment(Vector(-141.4, 50, 0), Vector(-141.4, -50, 0)),
    Part.ArcOfCircle(Part.Circle(Vector(-136.4, -50, 0), Vector(0, 0, 1), 5), math.radians(-180), math.radians(-179.42)),
    Part.ArcOfCircle(Part.Circle(Vector(-138.9, -52.5, 0), Vector(0, 0, 1), 3.5), math.radians(-46), math.radians(136)),
    Part.ArcOfCircle(Part.Circle(Vector(-136.4, -50, 0), Vector(0, 0, 1), 5), math.radians(-90.58), math.radians(-90)),
    Part.LineSegment(Vector(-136.4, -55, 0), Vector(31.6, -55, 0)),
    Part.ArcOfCircle(Part.Circle(Vector(31.6, -50, 0), Vector(0, 0, 1), 5), math.radians(-90), math.radians(-89.42)),
    Part.ArcOfCircle(Part.Circle(Vector(34.1, -52.5, 0), Vector(0, 0, 1), 3.5), math.radians(44), math.radians(226)),
    Part.ArcOfCircle(Part.Circle(Vector(31.6, -50, 0), Vector(0, 0, 1), 5), math.radians(-0.58), math.radians(0)),
], False)
sketch7.addConstraint([
    Sketcher.Constraint("Tangent", 0, 2, 1, 1),
    Sketcher.Constraint("Coincident", 1, 2, 2, 2),
    Sketcher.Constraint("Coincident", 2, 1, 3, 1),
    Sketcher.Constraint("Tangent", 3, 2, 4, 1),
    Sketcher.Constraint("Tangent", 4, 2, 5, 1),
    Sketcher.Constraint("Coincident", 5, 2, 6, 2),
    Sketcher.Constraint("Coincident", 6, 1, 7, 1),
    Sketcher.Constraint("Tangent", 7, 2, 8, 1),
    Sketcher.Constraint("Tangent", 8, 2, 9, 1),
    Sketcher.Constraint("Coincident", 9, 2, 10, 2),
    Sketcher.Constraint("Coincident", 10, 1, 11, 1),
    Sketcher.Constraint("Tangent", 11, 2, 12, 1),
    Sketcher.Constraint("Tangent", 12, 2, 13, 1),
    Sketcher.Constraint("Coincident", 13, 2, 14, 2),
    Sketcher.Constraint("Coincident", 14, 1, 15, 1),
    Sketcher.Constraint("Tangent", 15, 2, 0, 1),
    Sketcher.Constraint("Vertical", 0),
    Sketcher.Constraint("Horizontal", 4),
    Sketcher.Constraint("Vertical", 8),
    Sketcher.Constraint("Horizontal", 12),
    Sketcher.Constraint("Equal", 1, 3),
    Sketcher.Constraint("Equal", 3, 5),
    Sketcher.Constraint("Equal", 2, 6),
    Sketcher.Constraint("Equal", 5, 7),
    Sketcher.Constraint("Equal", 7, 9),
    Sketcher.Constraint("Equal", 6, 10),
    Sketcher.Constraint("Equal", 9, 11),
    Sketcher.Constraint("Equal", 11, 13),
    Sketcher.Constraint("Equal", 10, 14),
    Sketcher.Constraint("Equal", 13, 15),
    Sketcher.Constraint("Symmetric", 6, 3, 10, 3, -1),
    Sketcher.Constraint("Symmetric", 5, 3, 11, 3, -1),
    Sketcher.Constraint("Symmetric", 2, 3, 14, 3, -1),
    Sketcher.Constraint("Horizontal", 2, 3, 6, 3),
    Sketcher.Constraint("Horizontal", 1, 3, 7, 3),
    Sketcher.Constraint("Horizontal", 9, 3, 15, 3),
    Sketcher.Constraint("Horizontal", 2, 1, 5, 2),
    Sketcher.Constraint("Horizontal", 1, 2, 6, 1),
    Sketcher.Constraint("Horizontal", 10, 1, 13, 2),
    Sketcher.Constraint("Vertical", 6, 1, 9, 2),
    Sketcher.Constraint("Radius", 2, 3.5),
    Sketcher.Constraint("DistanceX", 4, 2, 4, 1, 168.0),
    Sketcher.Constraint("DistanceY", 0, 1, 0, 2, 100.0),
    Sketcher.Constraint("DistanceY", -1, 1, 3, 2, 55.0),
    Sketcher.Constraint("DistanceX", 6, 3, 2, 3, 173.0),
    Sketcher.Constraint("DistanceY", 10, 3, 6, 3, 105.0),
    Sketcher.Constraint("DistanceX", 3, 3, 0, 2, 5.0),
    Sketcher.Constraint("Radius", 1, 5.000011),
    Sketcher.Constraint("DistanceX", -1, 1, 2, 3, 34.099829),
])
sketch7.setExpression("Constraints[40]", "Params.sketch7_radius")
sketch7.setExpression("Constraints[41]", "Params.sketch7_width")
sketch7.setExpression("Constraints[42]", "Params.sketch7_height")
pocket5 = body.newObject("PartDesign::Pocket", "Pocket004")
pocket5.Profile = sketch7
pocket5.setExpression("Length", "Params.pocket5_length")
pocket5.Reversed = True

sketch8 = body.newObject("Sketcher::SketchObject", "Sketch007")
sketch8.AttachmentSupport = (doc.getObject("XY_Plane"), [""])
sketch8.MapMode = "FlatFace"
sketch8.AttachmentOffset = App.Placement(Vector(0, 0, -55), App.Rotation())
add_polygon(sketch8, [(-136, 54), (-136, 0), (32, 0), (32, 54)])
sketch8.addConstraint([
    Sketcher.Constraint("Vertical", 0),
    Sketcher.Constraint("Horizontal", 1),
    Sketcher.Constraint("Vertical", 2),
    Sketcher.Constraint("Horizontal", 3),
    Sketcher.Constraint("PointOnObject", 0, 2, -1),
    Sketcher.Constraint("DistanceX", 1, 1, 1, 2, 168.0),
    Sketcher.Constraint("DistanceY", 0, 2, 0, 1, 54.5),
    Sketcher.Constraint("DistanceX", 0, 2, -1, 1, 136.400171),
])
sketch8.setExpression("Constraints[9]", "Params.sketch8_width")
sketch8.setExpression("Constraints[10]", "Params.sketch8_height")
pocket6 = body.newObject("PartDesign::Pocket", "Pocket005")
pocket6.Profile = sketch8
pocket6.setExpression("Length", "Params.pocket6_length")

doc.recompute()
